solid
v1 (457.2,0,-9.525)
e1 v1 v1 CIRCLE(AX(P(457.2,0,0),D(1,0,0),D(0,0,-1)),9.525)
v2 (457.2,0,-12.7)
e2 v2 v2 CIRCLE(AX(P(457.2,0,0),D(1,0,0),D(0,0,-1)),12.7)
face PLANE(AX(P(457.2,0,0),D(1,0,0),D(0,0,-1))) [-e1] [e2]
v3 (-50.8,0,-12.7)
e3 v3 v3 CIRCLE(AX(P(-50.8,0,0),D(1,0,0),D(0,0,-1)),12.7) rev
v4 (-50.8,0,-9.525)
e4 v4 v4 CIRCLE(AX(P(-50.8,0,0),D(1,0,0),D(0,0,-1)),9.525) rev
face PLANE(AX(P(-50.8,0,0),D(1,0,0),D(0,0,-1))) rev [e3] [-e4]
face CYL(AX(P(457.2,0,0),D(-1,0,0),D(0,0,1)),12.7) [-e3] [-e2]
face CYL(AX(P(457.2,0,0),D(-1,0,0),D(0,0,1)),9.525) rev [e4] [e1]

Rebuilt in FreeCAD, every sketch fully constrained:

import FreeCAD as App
import Part
import Sketcher
from FreeCAD import Vector
Q = App.Units.Quantity

doc = App.newDocument("Part")
body = doc.addObject("PartDesign::Body", "Body")

# Sketch on YZ plane
sketch1 = body.newObject("Sketcher::SketchObject", "Sketch")
sketch1.AttachmentSupport = (doc.getObject("YZ_Plane"), [""])
sketch1.MapMode = "FlatFace"
sketch1.addGeometry([
    Part.Circle(Vector(0, 0, 0), Vector(0, 0, 1), 13),
    Part.Circle(Vector(0, 0, 0), Vector(0, 0, 1), 10),
], False)
sketch1.addConstraint([
    Sketcher.Constraint("Coincident", 0, 3, -1, 1),
    Sketcher.Constraint("Coincident", 1, 3, -1, 1),
    Sketcher.Constraint("Diameter", 0, Q("1 in")),
    Sketcher.Constraint("Diameter", 1, Q("0.75 in")),
])
pad1 = body.newObject("PartDesign::Pad", "Pad")
pad1.Profile = sketch1
pad1.Length = Q("36 in")
pad1.Midplane = True

# Sketch on YZ plane
sketch2 = body.newObject("Sketcher::SketchObject", "Sketch001")
sketch2.AttachmentSupport = (doc.getObject("YZ_Plane"), [""])
sketch2.MapMode = "FlatFace"
sketch2.AttachmentOffset = App.Placement(Vector(0, 0, -18 * 25.4), App.Rotation())
sketch2.addGeometry([
    Part.Circle(Vector(0, 0, 0), Vector(0, 0, 1), 13),
    Part.Circle(Vector(0, 0, 0), Vector(0, 0, 1), 10),
], False)
sketch2.addConstraint([
    Sketcher.Constraint("Coincident", 0, 3, -1, 1),
    Sketcher.Constraint("Coincident", 1, 3, -1, 1),
    Sketcher.Constraint("Diameter", 0, Q("1 in")),
    Sketcher.Constraint("Diameter", 1, Q("0.75 in")),
])
pocket1 = body.newObject("PartDesign::Pocket", "Pocket")
pocket1.Profile = sketch2
pocket1.Length = Q("16 in")
pocket1.Reversed = True

doc.recompute()
